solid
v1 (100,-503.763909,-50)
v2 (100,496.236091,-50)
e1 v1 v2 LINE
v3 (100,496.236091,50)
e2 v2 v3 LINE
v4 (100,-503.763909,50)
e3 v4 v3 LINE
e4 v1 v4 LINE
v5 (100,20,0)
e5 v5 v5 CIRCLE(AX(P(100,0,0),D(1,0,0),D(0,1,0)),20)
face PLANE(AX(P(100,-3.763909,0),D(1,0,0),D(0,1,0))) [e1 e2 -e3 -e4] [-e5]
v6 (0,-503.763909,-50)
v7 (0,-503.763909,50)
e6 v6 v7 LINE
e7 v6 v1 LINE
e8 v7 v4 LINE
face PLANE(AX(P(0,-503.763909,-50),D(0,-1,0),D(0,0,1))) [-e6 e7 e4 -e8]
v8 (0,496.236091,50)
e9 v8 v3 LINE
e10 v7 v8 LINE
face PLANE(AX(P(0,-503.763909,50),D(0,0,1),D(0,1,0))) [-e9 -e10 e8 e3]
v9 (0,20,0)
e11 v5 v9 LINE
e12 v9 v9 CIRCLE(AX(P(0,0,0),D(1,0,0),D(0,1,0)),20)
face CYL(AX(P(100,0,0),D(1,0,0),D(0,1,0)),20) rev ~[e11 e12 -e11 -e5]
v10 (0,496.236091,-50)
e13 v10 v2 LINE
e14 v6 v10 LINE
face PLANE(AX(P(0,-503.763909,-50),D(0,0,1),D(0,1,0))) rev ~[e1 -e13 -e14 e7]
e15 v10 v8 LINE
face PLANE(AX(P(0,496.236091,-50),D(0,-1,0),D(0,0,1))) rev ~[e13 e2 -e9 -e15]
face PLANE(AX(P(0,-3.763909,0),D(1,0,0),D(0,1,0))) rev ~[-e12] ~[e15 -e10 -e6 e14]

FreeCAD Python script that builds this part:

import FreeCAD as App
import Part
import Sketcher
from FreeCAD import Vector


def add_polygon(sketch, points):
    """Adds a closed chain of lines whose ends are joined by coincident constraints."""
    first, n = sketch.GeometryCount, len(points)
    for a, b in zip(points, points[1:] + points[:1]):
        sketch.addGeometry(Part.LineSegment(App.Vector(*a, 0), App.Vector(*b, 0)), False)
    for i in range(n):
        sketch.addConstraint(Sketcher.Constraint("Coincident", first + i, 2, first + (i + 1) % n, 1))

doc = App.newDocument("Part")
body = doc.addObject("PartDesign::Body", "Body")

sketch1 = doc.addObject("Sketcher::SketchObject", "Sketch")
body.addObject(sketch1)
sketch1.AttachmentSupport = (doc.YZ_Plane, [""])
sketch1.MapMode = "FlatFace"
add_polygon(sketch1, [(-504, 50), (-504, -50), (496, -50), (496, 50)])
sketch1.addConstraint(Sketcher.Constraint("Vertical", 0))
sketch1.addConstraint(Sketcher.Constraint("Horizontal", 1))
sketch1.addConstraint(Sketcher.Constraint("Vertical", 2))
sketch1.addConstraint(Sketcher.Constraint("Horizontal", 3))
sketch1.addConstraint(Sketcher.Constraint("DistanceX", 1, 1, 1, 2, 1000.0))
sketch1.addConstraint(Sketcher.Constraint("DistanceY", 0, 2, 0, 1, 100.0))
sketch1.addConstraint(Sketcher.Constraint("DistanceY", 0, 2, -1, 1, 50.0))
sketch1.addConstraint(Sketcher.Constraint("DistanceX", 0, 2, -1, 1, 503.763909))
pad1 = doc.addObject("PartDesign::Pad", "Pad")
body.addObject(pad1)
pad1.Profile = sketch1
pad1.Length = 100

sketch2 = doc.addObject("Sketcher::SketchObject", "Sketch001")
body.addObject(sketch2)
sketch2.AttachmentSupport = (doc.YZ_Plane, [""])
sketch2.MapMode = "FlatFace"
sketch2.AttachmentOffset = App.Placement(Vector(0, 0, 100), App.Rotation())
sketch2.addGeometry(Part.Circle(Vector(0, 0, 0), Vector(0, 0, 1), 20), False)
sketch2.addConstraint(Sketcher.Constraint("Coincident", 0, 3, -1, 1))
sketch2.addConstraint(Sketcher.Constraint("Diameter", 0, 40.0))
pocket1 = doc.addObject("PartDesign::Pocket", "Pocket")
body.addObject(pocket1)
pocket1.Profile = sketch2
pocket1.Length = 100

doc.recompute()
